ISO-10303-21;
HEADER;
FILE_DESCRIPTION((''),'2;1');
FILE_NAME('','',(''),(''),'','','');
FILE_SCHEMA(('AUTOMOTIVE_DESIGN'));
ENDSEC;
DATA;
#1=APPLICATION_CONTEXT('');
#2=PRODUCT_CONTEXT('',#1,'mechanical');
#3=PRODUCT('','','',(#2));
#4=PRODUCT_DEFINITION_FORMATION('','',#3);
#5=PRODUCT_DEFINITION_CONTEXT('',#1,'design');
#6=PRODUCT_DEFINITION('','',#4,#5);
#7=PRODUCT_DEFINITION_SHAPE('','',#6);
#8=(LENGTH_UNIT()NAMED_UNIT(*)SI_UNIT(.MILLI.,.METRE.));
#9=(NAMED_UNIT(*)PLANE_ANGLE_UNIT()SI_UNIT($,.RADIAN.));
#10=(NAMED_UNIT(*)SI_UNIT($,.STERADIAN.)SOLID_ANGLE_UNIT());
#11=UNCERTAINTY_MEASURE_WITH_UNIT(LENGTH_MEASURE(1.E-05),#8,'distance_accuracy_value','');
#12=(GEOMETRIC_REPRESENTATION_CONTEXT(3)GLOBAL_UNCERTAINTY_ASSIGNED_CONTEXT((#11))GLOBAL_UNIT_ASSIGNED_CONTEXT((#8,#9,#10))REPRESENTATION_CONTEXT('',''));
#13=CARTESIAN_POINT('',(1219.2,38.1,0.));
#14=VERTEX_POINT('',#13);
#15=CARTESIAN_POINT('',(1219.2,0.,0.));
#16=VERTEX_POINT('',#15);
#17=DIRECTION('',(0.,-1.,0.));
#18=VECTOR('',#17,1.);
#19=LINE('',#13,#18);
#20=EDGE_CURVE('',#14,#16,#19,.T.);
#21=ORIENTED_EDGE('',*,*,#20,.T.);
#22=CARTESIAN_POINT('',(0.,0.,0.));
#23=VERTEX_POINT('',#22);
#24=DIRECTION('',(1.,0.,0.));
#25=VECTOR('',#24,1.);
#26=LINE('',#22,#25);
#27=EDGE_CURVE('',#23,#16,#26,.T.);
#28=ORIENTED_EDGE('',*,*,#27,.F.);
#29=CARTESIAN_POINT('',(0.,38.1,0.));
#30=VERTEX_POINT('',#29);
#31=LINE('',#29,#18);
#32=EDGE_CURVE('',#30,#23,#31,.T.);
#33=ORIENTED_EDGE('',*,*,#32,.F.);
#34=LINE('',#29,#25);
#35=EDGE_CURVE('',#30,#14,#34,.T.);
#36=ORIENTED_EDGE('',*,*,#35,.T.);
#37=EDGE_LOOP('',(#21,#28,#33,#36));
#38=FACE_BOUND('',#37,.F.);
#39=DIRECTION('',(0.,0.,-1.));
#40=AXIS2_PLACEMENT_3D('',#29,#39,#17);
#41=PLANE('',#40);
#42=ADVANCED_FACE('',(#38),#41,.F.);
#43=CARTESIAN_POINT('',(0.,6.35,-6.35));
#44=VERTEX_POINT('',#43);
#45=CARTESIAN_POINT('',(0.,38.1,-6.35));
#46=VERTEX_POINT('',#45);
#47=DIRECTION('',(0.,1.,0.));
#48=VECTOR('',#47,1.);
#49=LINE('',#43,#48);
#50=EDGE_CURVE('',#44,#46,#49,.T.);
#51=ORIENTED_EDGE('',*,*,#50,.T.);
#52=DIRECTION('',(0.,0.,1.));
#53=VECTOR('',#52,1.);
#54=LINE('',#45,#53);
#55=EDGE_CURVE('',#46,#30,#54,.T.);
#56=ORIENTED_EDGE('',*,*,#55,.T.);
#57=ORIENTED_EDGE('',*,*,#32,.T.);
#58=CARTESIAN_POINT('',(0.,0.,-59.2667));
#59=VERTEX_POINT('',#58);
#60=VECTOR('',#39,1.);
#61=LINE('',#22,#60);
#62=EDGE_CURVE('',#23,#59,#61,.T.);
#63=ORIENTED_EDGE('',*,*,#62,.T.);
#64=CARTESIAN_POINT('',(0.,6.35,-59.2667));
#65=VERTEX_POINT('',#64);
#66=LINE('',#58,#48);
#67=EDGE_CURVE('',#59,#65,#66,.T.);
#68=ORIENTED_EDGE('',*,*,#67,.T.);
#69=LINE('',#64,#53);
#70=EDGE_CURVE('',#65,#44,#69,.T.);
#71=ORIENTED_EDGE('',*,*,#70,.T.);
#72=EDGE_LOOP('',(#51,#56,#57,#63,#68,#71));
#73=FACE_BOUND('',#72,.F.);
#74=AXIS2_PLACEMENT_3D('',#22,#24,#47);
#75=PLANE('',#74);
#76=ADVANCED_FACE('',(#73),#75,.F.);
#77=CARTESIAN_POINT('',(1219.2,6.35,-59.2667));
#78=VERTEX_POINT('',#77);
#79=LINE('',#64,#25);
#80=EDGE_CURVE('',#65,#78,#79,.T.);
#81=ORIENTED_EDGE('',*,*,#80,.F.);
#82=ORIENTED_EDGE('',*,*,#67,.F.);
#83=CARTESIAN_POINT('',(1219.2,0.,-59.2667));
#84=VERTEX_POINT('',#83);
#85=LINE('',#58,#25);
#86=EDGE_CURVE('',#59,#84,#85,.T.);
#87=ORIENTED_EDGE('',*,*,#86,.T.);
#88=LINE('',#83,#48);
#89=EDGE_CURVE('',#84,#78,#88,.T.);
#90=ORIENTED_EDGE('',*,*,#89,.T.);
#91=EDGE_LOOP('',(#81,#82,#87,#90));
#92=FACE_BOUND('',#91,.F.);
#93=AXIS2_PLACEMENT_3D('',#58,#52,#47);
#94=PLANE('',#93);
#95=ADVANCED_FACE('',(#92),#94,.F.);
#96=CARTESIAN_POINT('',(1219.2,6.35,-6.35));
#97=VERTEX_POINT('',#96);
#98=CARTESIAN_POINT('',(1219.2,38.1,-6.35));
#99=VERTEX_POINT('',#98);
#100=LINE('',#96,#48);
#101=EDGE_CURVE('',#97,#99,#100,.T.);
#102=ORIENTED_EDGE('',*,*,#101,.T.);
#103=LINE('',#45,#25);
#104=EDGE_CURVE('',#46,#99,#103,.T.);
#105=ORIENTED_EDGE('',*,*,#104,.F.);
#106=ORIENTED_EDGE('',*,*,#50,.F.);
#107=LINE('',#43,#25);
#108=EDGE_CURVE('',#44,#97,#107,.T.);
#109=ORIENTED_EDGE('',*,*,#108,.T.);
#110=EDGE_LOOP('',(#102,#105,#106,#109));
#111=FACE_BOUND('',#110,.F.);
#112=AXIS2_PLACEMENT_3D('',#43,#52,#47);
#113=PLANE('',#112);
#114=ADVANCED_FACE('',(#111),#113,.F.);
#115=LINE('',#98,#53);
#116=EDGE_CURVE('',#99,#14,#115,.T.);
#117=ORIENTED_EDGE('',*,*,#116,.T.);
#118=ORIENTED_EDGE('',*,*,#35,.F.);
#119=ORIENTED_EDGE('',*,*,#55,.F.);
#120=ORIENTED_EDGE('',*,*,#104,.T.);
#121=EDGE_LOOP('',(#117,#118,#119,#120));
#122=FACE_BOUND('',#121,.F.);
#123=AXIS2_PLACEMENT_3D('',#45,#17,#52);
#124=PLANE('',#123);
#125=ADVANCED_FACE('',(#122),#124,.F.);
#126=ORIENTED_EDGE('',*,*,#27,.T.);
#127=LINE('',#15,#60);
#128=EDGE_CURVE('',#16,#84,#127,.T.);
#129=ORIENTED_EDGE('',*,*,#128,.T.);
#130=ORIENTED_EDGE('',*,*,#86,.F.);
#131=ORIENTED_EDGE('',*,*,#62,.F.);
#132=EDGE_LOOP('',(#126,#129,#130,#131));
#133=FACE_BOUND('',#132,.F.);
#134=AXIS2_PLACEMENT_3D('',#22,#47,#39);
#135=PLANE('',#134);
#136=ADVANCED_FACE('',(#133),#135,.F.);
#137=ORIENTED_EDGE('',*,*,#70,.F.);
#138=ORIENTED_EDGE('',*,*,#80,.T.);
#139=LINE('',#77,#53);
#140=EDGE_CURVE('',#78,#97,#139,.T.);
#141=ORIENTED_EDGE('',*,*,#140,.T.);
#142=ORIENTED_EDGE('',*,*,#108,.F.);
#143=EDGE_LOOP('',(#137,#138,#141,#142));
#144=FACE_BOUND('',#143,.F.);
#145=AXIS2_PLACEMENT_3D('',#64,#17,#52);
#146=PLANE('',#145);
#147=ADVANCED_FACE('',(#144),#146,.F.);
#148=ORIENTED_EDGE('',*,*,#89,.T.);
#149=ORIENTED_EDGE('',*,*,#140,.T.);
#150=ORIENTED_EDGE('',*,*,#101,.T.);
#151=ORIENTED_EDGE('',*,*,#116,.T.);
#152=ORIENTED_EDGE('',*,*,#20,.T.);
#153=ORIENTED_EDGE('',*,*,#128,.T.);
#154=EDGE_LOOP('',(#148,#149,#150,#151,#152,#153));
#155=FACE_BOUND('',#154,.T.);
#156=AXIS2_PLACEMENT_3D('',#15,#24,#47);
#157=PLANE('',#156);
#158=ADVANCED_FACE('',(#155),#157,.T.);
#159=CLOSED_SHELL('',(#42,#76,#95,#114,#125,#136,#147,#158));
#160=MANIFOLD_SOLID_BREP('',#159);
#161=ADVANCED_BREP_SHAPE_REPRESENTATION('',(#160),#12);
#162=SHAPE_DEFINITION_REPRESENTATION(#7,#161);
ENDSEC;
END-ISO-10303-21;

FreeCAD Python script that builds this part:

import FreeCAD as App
import Part
import Sketcher
from FreeCAD import Vector
Q = App.Units.Quantity


def add_polygon(sketch, points):
    """Adds a closed chain of lines whose ends are joined by coincident constraints."""
    first, n = sketch.GeometryCount, len(points)
    for a, b in zip(points, points[1:] + points[:1]):
        sketch.addGeometry(Part.LineSegment(App.Vector(*a, 0), App.Vector(*b, 0)), False)
    for i in range(n):
        sketch.addConstraint(Sketcher.Constraint("Coincident", first + i, 2, first + (i + 1) % n, 1))

doc = App.newDocument("Part")
body = doc.addObject("PartDesign::Body", "Body")

sketch1 = body.newObject("Sketcher::SketchObject", "Sketch")
sketch1.AttachmentSupport = (doc.getObject("YZ_Plane"), [""])
sketch1.MapMode = "FlatFace"
add_polygon(sketch1, [(38.1, 0), (0, 0), (0, -59.2667), (6.35, -59.2667), (6.35, -6.35), (38.1, -6.35)])
sketch1.addConstraint(Sketcher.Constraint("Horizontal", 0))
sketch1.addConstraint(Sketcher.Constraint("Vertical", 1))
sketch1.addConstraint(Sketcher.Constraint("Horizontal", 2))
sketch1.addConstraint(Sketcher.Constraint("Vertical", 3))
sketch1.addConstraint(Sketcher.Constraint("Horizontal", 4))
sketch1.addConstraint(Sketcher.Constraint("Vertical", 5))
sketch1.addConstraint(Sketcher.Constraint("Coincident", 0, 2, -1, 1))
sketch1.addConstraint(Sketcher.Constraint("Equal", 2, 5))
sketch1.addConstraint(Sketcher.Constraint("DistanceX", 0, 2, 0, 1, Q("1.5 in")))
sketch1.addConstraint(Sketcher.Constraint("DistanceX", 2, 1, 2, 2, Q("0.25 in")))
sketch1.addConstraint(Sketcher.Constraint("DistanceY", 1, 2, 1, 1, 59.2667))
pad1 = body.newObject("PartDesign::Pad", "Pad")
pad1.Profile = sketch1
pad1.Length = Q("48 in")

doc.recompute()
